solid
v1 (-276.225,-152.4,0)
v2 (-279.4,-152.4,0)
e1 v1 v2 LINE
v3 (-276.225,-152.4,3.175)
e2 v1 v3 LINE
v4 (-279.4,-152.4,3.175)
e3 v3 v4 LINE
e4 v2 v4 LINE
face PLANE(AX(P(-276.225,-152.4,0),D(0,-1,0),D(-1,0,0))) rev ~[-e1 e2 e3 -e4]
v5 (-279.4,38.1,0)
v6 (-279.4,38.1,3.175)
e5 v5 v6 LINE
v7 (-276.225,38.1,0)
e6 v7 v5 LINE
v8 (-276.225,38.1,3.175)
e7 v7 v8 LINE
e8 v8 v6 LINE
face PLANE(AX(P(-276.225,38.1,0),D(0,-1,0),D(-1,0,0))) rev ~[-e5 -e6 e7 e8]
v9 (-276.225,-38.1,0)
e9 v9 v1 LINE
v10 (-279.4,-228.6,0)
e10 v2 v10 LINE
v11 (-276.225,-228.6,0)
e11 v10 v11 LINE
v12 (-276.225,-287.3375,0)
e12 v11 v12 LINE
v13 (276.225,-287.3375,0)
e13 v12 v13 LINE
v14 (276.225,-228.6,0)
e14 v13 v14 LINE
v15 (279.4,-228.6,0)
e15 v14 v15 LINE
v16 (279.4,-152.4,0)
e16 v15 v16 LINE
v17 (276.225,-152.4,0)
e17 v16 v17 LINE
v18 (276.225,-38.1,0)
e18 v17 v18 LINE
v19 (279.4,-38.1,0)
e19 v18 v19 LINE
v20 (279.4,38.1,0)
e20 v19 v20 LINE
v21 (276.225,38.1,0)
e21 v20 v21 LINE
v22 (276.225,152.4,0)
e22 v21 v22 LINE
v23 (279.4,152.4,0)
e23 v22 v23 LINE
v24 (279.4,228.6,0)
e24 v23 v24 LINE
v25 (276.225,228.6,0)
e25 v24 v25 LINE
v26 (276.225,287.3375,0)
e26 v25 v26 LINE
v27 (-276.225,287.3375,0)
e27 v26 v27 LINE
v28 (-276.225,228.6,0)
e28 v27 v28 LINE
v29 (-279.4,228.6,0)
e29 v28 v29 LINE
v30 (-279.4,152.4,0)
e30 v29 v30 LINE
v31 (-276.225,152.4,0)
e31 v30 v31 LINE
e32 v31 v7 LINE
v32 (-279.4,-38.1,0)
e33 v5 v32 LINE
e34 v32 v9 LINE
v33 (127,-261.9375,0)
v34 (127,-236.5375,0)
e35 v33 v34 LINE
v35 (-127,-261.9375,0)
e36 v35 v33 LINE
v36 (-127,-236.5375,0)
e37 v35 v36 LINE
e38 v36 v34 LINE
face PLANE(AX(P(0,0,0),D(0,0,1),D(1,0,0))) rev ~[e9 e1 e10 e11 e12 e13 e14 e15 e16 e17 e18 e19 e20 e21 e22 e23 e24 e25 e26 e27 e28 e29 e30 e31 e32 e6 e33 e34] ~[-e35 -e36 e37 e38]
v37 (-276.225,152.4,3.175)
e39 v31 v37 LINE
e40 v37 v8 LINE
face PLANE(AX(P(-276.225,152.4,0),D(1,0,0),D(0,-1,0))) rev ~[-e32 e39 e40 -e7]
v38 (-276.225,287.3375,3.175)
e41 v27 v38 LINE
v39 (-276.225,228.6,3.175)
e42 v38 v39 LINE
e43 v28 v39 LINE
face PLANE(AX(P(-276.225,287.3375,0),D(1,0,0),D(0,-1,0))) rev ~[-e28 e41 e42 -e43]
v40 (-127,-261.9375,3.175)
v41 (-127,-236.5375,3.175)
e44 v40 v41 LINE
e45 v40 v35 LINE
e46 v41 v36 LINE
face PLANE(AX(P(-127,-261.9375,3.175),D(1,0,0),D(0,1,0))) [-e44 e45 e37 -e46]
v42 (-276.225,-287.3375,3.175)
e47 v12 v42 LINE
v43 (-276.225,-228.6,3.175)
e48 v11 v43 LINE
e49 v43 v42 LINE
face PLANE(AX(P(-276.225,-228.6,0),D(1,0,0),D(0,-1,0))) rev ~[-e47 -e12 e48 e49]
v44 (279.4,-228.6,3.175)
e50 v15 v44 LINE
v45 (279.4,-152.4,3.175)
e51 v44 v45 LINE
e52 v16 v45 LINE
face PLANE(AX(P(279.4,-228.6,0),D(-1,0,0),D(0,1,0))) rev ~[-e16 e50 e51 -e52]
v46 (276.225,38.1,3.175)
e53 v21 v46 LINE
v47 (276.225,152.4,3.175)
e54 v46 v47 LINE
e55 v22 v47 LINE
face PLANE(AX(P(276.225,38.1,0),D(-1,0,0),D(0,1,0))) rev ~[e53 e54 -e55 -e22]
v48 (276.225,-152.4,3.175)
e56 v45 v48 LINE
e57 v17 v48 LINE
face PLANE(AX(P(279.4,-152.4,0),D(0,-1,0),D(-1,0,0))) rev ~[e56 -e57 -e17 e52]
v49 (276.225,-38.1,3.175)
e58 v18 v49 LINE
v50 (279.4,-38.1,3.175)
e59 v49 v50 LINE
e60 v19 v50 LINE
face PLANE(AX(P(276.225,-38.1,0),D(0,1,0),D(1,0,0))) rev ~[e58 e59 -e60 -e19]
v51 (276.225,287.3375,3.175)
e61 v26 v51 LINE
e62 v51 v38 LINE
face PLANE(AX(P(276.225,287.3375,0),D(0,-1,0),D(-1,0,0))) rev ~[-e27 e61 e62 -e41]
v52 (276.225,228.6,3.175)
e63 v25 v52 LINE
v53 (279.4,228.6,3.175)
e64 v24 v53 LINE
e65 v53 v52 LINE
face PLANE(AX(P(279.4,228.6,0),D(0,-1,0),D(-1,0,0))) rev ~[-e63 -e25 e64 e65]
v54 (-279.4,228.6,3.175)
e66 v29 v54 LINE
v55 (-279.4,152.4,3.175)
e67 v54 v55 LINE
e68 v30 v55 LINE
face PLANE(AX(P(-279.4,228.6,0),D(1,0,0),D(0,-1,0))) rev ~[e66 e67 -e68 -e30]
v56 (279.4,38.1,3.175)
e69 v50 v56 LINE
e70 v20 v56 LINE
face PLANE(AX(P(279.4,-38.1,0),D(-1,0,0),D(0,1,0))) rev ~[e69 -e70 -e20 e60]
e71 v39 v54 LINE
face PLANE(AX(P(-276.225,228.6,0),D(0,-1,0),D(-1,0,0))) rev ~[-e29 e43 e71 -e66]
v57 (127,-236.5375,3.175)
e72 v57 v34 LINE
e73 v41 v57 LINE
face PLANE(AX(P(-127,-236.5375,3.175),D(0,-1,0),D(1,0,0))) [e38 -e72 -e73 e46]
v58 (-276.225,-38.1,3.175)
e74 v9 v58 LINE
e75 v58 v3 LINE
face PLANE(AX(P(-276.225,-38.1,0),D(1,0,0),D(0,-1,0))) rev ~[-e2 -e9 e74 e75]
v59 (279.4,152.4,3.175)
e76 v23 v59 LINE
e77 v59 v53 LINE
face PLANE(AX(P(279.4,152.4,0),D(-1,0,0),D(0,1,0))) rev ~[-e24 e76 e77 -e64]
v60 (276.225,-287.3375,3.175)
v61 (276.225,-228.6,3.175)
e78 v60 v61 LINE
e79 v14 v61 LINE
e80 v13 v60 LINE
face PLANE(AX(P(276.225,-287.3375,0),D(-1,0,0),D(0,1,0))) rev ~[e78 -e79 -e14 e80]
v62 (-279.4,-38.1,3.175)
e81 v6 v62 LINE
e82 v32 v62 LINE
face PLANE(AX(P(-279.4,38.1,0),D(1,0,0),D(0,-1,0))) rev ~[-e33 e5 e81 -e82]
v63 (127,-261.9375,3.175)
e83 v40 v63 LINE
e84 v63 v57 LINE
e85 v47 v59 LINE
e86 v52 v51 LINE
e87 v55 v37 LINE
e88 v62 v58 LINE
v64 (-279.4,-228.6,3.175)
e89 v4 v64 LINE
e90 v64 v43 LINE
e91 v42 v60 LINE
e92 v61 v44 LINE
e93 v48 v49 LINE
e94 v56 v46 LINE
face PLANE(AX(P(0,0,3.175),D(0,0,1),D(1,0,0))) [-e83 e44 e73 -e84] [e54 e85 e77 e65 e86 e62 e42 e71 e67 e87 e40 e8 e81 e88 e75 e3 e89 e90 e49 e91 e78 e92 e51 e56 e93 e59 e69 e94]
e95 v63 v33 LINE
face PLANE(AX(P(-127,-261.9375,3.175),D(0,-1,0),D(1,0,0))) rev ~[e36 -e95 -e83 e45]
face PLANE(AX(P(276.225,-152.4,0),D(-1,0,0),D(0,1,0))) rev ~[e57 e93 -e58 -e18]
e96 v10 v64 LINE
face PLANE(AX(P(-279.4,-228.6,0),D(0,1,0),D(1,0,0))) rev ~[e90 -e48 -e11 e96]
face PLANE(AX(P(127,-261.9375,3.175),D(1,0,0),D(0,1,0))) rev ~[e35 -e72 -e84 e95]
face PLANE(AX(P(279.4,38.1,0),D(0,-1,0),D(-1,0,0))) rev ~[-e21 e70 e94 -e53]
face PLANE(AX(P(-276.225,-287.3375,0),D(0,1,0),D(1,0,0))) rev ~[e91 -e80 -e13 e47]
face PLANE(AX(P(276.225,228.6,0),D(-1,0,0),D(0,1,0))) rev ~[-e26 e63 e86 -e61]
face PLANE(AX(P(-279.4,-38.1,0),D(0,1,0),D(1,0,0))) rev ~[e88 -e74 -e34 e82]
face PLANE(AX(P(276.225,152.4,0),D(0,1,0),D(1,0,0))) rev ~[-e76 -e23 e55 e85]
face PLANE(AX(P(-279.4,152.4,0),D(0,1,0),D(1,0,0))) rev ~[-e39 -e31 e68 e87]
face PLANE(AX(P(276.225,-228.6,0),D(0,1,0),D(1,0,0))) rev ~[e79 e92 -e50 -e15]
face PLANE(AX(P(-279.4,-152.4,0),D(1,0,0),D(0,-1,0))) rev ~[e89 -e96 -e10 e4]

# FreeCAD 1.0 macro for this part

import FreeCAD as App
import Part
import Sketcher

V = App.Vector
Q = App.Units.Quantity


def add_polygon(sketch, points):
    """Adds a closed chain of lines whose ends are joined by coincident constraints."""
    first, n = sketch.GeometryCount, len(points)
    for a, b in zip(points, points[1:] + points[:1]):
        sketch.addGeometry(Part.LineSegment(App.Vector(*a, 0), App.Vector(*b, 0)), False)
    for i in range(n):
        sketch.addConstraint(Sketcher.Constraint("Coincident", first + i, 2, first + (i + 1) % n, 1))

doc = App.newDocument("Part")
body = doc.addObject("PartDesign::Body", "Body")

# Sketch on XY plane
sketch1 = body.newObject("Sketcher::SketchObject", "Sketch")
sketch1.AttachmentSupport = (doc.getObject("XY_Plane"), [""])
sketch1.MapMode = "FlatFace"
add_polygon(sketch1, [(-276.225, -287.3375), (276.225, -287.3375), (276.225, -228.6), (279.4, -228.6), (279.4, -152.4), (276.225, -152.4), (276.225, -38.1), (279.4, -38.1), (279.4, 38.1), (276.225, 38.1), (276.225, 152.4), (279.4, 152.4), (279.4, 228.6), (276.225, 228.6), (276.225, 287.3375), (-276.225, 287.3375), (-276.225, 228.6), (-279.4, 228.6), (-279.4, 152.4), (-276.225, 152.4), (-276.225, 38.1), (-279.4, 38.1), (-279.4, -38.1), (-276.225, -38.1), (-276.225, -152.4), (-279.4, -152.4), (-279.4, -228.6), (-276.225, -228.6)])  # lines 0-27
sketch1.addConstraint([
    Sketcher.Constraint("Horizontal", 0),
    Sketcher.Constraint("Vertical", 1),
    Sketcher.Constraint("Horizontal", 2),
    Sketcher.Constraint("Vertical", 3),
    Sketcher.Constraint("Horizontal", 4),
    Sketcher.Constraint("Vertical", 5),
    Sketcher.Constraint("Horizontal", 6),
    Sketcher.Constraint("Vertical", 7),
    Sketcher.Constraint("Horizontal", 8),
    Sketcher.Constraint("Vertical", 9),
    Sketcher.Constraint("Horizontal", 10),
    Sketcher.Constraint("Vertical", 11),
    Sketcher.Constraint("Horizontal", 12),
    Sketcher.Constraint("Vertical", 13),
    Sketcher.Constraint("Horizontal", 14),
    Sketcher.Constraint("Vertical", 15),
    Sketcher.Constraint("Horizontal", 16),
    Sketcher.Constraint("Vertical", 17),
    Sketcher.Constraint("Horizontal", 18),
    Sketcher.Constraint("Vertical", 19),
    Sketcher.Constraint("Horizontal", 20),
    Sketcher.Constraint("Vertical", 21),
    Sketcher.Constraint("Horizontal", 22),
    Sketcher.Constraint("Vertical", 23),
    Sketcher.Constraint("Horizontal", 24),
    Sketcher.Constraint("Vertical", 25),
    Sketcher.Constraint("Horizontal", 26),
    Sketcher.Constraint("Vertical", 27),
    Sketcher.Constraint("Symmetric", 0, 2, 14, 2, -1, 1),
    Sketcher.Constraint("Symmetric", 2, 2, 16, 2, -1, 1),
    Sketcher.Constraint("Symmetric", 4, 2, 18, 2, -1, 1),
    Sketcher.Constraint("Symmetric", 6, 2, 20, 2, -1, 1),
    Sketcher.Constraint("Symmetric", 8, 2, 22, 2, -1, 1),
    Sketcher.Constraint("Symmetric", 10, 2, 24, 2, -1, 1),
    Sketcher.Constraint("Symmetric", 12, 2, 26, 2, -1, 1),
    Sketcher.Constraint("Symmetric", 12, 2, 15, 2, -2),
    Sketcher.Constraint("Symmetric", 10, 2, 17, 2, -2),
    Sketcher.Constraint("Symmetric", 8, 2, 19, 2, -2),
    Sketcher.Constraint("Vertical", 1, 2, 4, 2),
    Sketcher.Constraint("Vertical", 3, 2, 6, 2),
    Sketcher.Constraint("Equal", 3, 7),
    Sketcher.Constraint("DistanceY", 3, 1, 3, 2, Q("3 in")),
    Sketcher.Constraint("DistanceY", 5, 1, 5, 2, Q("4.5 in")),
    Sketcher.Constraint("DistanceX", -1, 1, 2, 2, Q("11 in")),
    Sketcher.Constraint("DistanceX", 0, 1, 0, 2, Q("21.75 in")),
    Sketcher.Constraint("DistanceY", 1, 1, 1, 2, Q("2.3125 in")),
])
pad1 = body.newObject("PartDesign::Pad", "Pad")
pad1.Profile = sketch1
pad1.Length = Q("0.125 in")

# Sketch on XY plane
sketch2 = body.newObject("Sketcher::SketchObject", "Sketch001")
sketch2.AttachmentSupport = (doc.getObject("XY_Plane"), [""])
sketch2.MapMode = "FlatFace"
sketch2.AttachmentOffset = App.Placement(V(0, 0, 0.125 * 25.4), App.Rotation())
add_polygon(sketch2, [(-127, -236.5375), (-127, -261.9375), (127, -261.9375), (127, -236.5375)])  # lines 0-3
sketch2.addConstraint([
    Sketcher.Constraint("Vertical", 0),
    Sketcher.Constraint("Horizontal", 1),
    Sketcher.Constraint("Vertical", 2),
    Sketcher.Constraint("Horizontal", 3),
    Sketcher.Constraint("DistanceX", 1, 1, 1, 2, Q("10 in")),
    Sketcher.Constraint("DistanceY", 0, 2, 0, 1, Q("1 in")),
    Sketcher.Constraint("DistanceX", 0, 2, -1, 1, Q("5 in")),
    Sketcher.Constraint("DistanceY", 0, 2, -1, 1, Q("10.3125 in")),
])
pocket1 = body.newObject("PartDesign::Pocket", "Pocket")
pocket1.Profile = sketch2
pocket1.Type = "ThroughAll"

doc.recompute()
